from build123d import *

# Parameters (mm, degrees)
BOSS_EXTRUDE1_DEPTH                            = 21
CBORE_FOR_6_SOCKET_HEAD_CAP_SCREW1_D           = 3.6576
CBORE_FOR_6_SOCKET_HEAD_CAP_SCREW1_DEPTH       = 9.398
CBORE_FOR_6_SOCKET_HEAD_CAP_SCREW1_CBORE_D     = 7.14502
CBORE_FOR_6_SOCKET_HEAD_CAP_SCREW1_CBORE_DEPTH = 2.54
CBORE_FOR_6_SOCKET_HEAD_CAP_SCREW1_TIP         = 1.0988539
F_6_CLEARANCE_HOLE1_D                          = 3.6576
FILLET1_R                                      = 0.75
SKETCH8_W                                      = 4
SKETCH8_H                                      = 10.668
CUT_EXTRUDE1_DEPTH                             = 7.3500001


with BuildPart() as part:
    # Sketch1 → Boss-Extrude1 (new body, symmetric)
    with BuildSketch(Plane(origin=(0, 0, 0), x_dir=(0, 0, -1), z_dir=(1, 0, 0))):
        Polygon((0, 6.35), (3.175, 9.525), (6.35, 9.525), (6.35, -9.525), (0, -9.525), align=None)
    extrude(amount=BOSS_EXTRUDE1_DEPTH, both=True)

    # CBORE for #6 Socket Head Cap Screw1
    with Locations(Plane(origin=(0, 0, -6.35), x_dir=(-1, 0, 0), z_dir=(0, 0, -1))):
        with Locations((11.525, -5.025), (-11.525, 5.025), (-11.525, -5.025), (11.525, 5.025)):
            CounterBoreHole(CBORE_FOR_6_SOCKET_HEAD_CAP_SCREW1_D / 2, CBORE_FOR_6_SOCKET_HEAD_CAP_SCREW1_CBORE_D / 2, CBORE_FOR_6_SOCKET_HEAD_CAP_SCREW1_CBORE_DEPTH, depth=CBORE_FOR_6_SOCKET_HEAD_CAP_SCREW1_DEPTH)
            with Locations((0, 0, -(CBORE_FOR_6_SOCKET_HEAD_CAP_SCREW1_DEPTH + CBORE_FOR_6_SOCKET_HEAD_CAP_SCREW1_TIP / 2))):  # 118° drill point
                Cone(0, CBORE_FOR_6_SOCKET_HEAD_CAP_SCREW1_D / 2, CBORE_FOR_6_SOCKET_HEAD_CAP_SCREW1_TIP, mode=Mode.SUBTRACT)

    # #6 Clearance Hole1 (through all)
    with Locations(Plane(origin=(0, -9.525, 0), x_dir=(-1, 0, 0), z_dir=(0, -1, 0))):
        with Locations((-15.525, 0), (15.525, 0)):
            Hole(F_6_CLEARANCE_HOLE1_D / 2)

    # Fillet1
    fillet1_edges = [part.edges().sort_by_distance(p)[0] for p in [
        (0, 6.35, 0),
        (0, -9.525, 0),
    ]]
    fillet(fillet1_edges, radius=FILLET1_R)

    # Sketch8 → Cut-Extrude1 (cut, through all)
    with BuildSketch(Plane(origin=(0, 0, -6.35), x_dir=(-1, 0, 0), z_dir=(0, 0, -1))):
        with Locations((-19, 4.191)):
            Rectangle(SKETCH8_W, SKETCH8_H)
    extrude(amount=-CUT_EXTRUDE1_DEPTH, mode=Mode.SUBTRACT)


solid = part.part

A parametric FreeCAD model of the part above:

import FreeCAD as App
import Part
import Sketcher
Q = App.Units.Quantity


def edges_at(feature, points):
    """Names of the edges that pass closest to the given points."""
    edges = feature.Shape.Edges
    near = lambda p: min(range(len(edges)), key=lambda i: edges[i].distToShape(Part.Vertex(*p))[0])
    return sorted({f"Edge{near(p) + 1}" for p in points})

doc = App.newDocument("Part")
body = doc.addObject("PartDesign::Body", "Body")

# Sketch on YZ plane
sketch1 = doc.addObject("Sketcher::SketchObject", "Sketch")
body.addObject(sketch1)
sketch1.AttachmentSupport = (doc.YZ_Plane, [""])
sketch1.MapMode = "FlatFace"
sketch1.addGeometry([
    Part.LineSegment(App.Vector(9.525, -3.175, 0), App.Vector(6.35, 0, 0)),  # 0
    Part.LineSegment(App.Vector(6.35, 0, 0), App.Vector(-9.525, 0, 0)),  # 1
    Part.LineSegment(App.Vector(-9.525, 0, 0), App.Vector(-9.525, -6.35, 0)),  # 2
    Part.LineSegment(App.Vector(-9.525, -6.35, 0), App.Vector(9.525, -6.35, 0)),  # 3
    Part.LineSegment(App.Vector(9.525, -6.35, 0), App.Vector(9.525, -3.175, 0)),  # 4
], False)
sketch1.addConstraint([
    Sketcher.Constraint("Coincident", 0, 2, 1, 1),
    Sketcher.Constraint("Coincident", 1, 2, 2, 1),
    Sketcher.Constraint("Coincident", 2, 2, 3, 1),
    Sketcher.Constraint("Coincident", 3, 2, 4, 1),
    Sketcher.Constraint("Coincident", 4, 2, 0, 1),
    Sketcher.Constraint("Horizontal", 1),
    Sketcher.Constraint("Vertical", 2),
    Sketcher.Constraint("Horizontal", 3),
    Sketcher.Constraint("Vertical", 4),
    Sketcher.Constraint("PointOnObject", 0, 2, -1),
    Sketcher.Constraint("Angle", 0, Q("135 deg")),
    Sketcher.Constraint("DistanceX", 3, 1, 3, 2, Q("0.75 in")),
    Sketcher.Constraint("DistanceY", 2, 2, 2, 1, Q("0.25 in")),
    Sketcher.Constraint("DistanceX", 1, 2, 1, 1, Q("0.625 in")),
    Sketcher.Constraint("DistanceX", -1, 1, 0, 2, Q("0.25 in")),
])
pad1 = doc.addObject("PartDesign::Pad", "Pad")
body.addObject(pad1)
pad1.Profile = sketch1
pad1.Length = 42
pad1.Midplane = True

# Sketch on XY plane
sketch2 = doc.addObject("Sketcher::SketchObject", "Sketch001")
body.addObject(sketch2)
sketch2.AttachmentSupport = (doc.XY_Plane, [""])
sketch2.MapMode = "FlatFace"
sketch2.AttachmentOffset = App.Placement(App.Vector(0, 0, -0.25 * 25.4), App.Rotation())
sketch2.addGeometry([
    Part.Circle(App.Vector(-11.525, -5.025, 0), App.Vector(0, 0, 1), 1.8288),
    Part.Circle(App.Vector(11.525, 5.025, 0), App.Vector(0, 0, 1), 1.8288),
    Part.Circle(App.Vector(11.525, -5.025, 0), App.Vector(0, 0, 1), 1.8288),
    Part.Circle(App.Vector(-11.525, 5.025, 0), App.Vector(0, 0, 1), 1.8288),
], False)
sketch2.addConstraint([
    Sketcher.Constraint("Equal", 0, 1),
    Sketcher.Constraint("Equal", 1, 2),
    Sketcher.Constraint("Equal", 2, 3),
    Sketcher.Constraint("Symmetric", 0, 3, 1, 3, -1, 1),
    Sketcher.Constraint("Symmetric", 2, 3, 3, 3, -1, 1),
    Sketcher.Constraint("Symmetric", 0, 3, 2, 3, -2),
    Sketcher.Constraint("Diameter", 0, Q("0.144 in")),
    Sketcher.Constraint("DistanceX", 0, 3, -1, 1, Q("11.525 mm")),
    Sketcher.Constraint("DistanceY", 0, 3, -1, 1, Q("5.025 mm")),
])
doc.recompute()
hole = doc.addObject("PartDesign::Hole", "Hole")
body.addObject(hole)
hole.Profile = sketch2
hole.ThreadType = "None"
hole.Diameter = Q("0.144 in")
hole.DepthType = "Dimension"
hole.Depth = Q("0.37 in")
hole.DrillPoint = "Angled"
hole.DrillPointAngle = 118
hole.HoleCutType = "Counterbore"
hole.HoleCutDiameter = Q("0.2813 in")
hole.HoleCutDepth = Q("0.1 in")
hole.Reversed = True

# Sketch on XZ plane
sketch3 = doc.addObject("Sketcher::SketchObject", "Sketch002")
body.addObject(sketch3)
sketch3.AttachmentSupport = (doc.XZ_Plane, [""])
sketch3.MapMode = "FlatFace"
sketch3.AttachmentOffset = App.Placement(App.Vector(0, 0, 0.375 * 25.4), App.Rotation())
sketch3.addGeometry([
    Part.Circle(App.Vector(15.525, 0, 0), App.Vector(0, 0, 1), 1.8288),
    Part.Circle(App.Vector(-15.525, 0, 0), App.Vector(0, 0, 1), 1.8288),
], False)
sketch3.addConstraint([
    Sketcher.Constraint("Equal", 0, 1),
    Sketcher.Constraint("Symmetric", 0, 3, 1, 3, -1, 1),
    Sketcher.Constraint("PointOnObject", 0, 3, -1),
    Sketcher.Constraint("Diameter", 0, Q("0.144 in")),
    Sketcher.Constraint("DistanceX", -1, 1, 0, 3, Q("15.525 mm")),
])
doc.recompute()
hole2 = doc.addObject("PartDesign::Hole", "Hole001")
body.addObject(hole2)
hole2.Profile = sketch3
hole2.ThreadType = "None"
hole2.Diameter = Q("0.144 in")
hole2.DepthType = "ThroughAll"
doc.recompute()

fillet = doc.addObject("PartDesign::Fillet", "Fillet")
body.addObject(fillet)
fillet.Base = (hole2, edges_at(hole2, [(0, 6.35, 0), (0, -9.525, 0)]))
fillet.Radius = 0.75

# Sketch on XY plane
sketch4 = doc.addObject("Sketcher::SketchObject", "Sketch003")
body.addObject(sketch4)
sketch4.AttachmentSupport = (doc.XY_Plane, [""])
sketch4.MapMode = "FlatFace"
sketch4.AttachmentOffset = App.Placement(App.Vector(0, 0, -0.25 * 25.4), App.Rotation())
sketch4.addGeometry([
    Part.LineSegment(App.Vector(21, 9.525, 0), App.Vector(21, -1.143, 0)),
    Part.LineSegment(App.Vector(21, -1.143, 0), App.Vector(17, -1.143, 0)),
    Part.LineSegment(App.Vector(17, -1.143, 0), App.Vector(17, 9.525, 0)),
    Part.LineSegment(App.Vector(17, 9.525, 0), App.Vector(21, 9.525, 0)),
], False)
sketch4.addConstraint([
    Sketcher.Constraint("Coincident", 0, 2, 1, 1),
    Sketcher.Constraint("Coincident", 1, 2, 2, 1),
    Sketcher.Constraint("Coincident", 2, 2, 3, 1),
    Sketcher.Constraint("Coincident", 3, 2, 0, 1),
    Sketcher.Constraint("Vertical", 0),
    Sketcher.Constraint("Horizontal", 1),
    Sketcher.Constraint("Vertical", 2),
    Sketcher.Constraint("Horizontal", 3),
    Sketcher.Constraint("DistanceY", 0, 2, 0, 1, Q("0.42 in")),
    Sketcher.Constraint("DistanceY", 0, 2, -1, 1, Q("0.045 in")),
    Sketcher.Constraint("DistanceX", 1, 2, 1, 1, Q("4 mm")),
    Sketcher.Constraint("DistanceX", -1, 1, 0, 2, Q("21 mm")),
])
pocket1 = doc.addObject("PartDesign::Pocket", "Pocket")
body.addObject(pocket1)
pocket1.Profile = sketch4
pocket1.Type = "ThroughAll"
pocket1.Reversed = True

doc.recompute()
